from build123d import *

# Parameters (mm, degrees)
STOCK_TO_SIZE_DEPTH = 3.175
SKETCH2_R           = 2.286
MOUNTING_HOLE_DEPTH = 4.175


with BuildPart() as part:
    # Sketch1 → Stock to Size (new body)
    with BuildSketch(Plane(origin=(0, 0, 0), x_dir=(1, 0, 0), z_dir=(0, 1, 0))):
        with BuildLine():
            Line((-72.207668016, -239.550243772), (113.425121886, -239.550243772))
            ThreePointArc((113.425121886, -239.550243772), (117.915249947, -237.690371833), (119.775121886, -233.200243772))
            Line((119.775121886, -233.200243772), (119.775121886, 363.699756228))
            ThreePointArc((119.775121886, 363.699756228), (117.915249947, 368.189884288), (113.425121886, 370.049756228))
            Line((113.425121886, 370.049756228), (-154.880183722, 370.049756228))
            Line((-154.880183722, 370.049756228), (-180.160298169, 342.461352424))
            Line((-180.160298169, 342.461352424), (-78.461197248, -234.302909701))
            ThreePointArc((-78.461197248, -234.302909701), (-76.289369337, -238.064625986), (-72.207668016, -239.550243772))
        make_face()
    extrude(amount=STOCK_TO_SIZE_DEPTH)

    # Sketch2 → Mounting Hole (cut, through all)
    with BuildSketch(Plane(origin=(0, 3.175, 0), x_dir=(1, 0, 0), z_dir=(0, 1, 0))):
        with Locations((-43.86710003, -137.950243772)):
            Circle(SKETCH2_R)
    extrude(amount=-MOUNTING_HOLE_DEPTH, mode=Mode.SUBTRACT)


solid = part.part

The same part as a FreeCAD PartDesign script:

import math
import FreeCAD as App
import Part
import Sketcher
Q = App.Units.Quantity

doc = App.newDocument("Part")
params = doc.addObject("Spreadsheet::Sheet", "Params")
for row, (alias, value) in enumerate([
    ("sketch1_radius", "0.25 in"),
    ("sketch1_height", "23.5 in"),
    ("pad1_length", "0.125 in"),
    ("sketch2_diameter", "0.18 in"),
], start=1):
    params.set(f"A{row}", alias)
    params.set(f"B{row}", "=" + value)
    params.setAlias(f"B{row}", alias)

body = doc.addObject("PartDesign::Body", "Body")

# Sketch on XZ plane
sketch1 = doc.addObject("Sketcher::SketchObject", "Sketch")
body.addObject(sketch1)
sketch1.AttachmentSupport = (doc.XZ_Plane, [""])
sketch1.MapMode = "FlatFace"
sketch1.addGeometry([
    Part.LineSegment(App.Vector(-72.207668, 239.550244, 0), App.Vector(113.425122, 239.550244, 0)),  # 0
    Part.ArcOfCircle(Part.Circle(App.Vector(113.425122, 233.200244, 0), App.Vector(0, 0, 1), 6.35), math.radians(0), math.radians(90)),  # 1
    Part.LineSegment(App.Vector(119.775122, 233.200244, 0), App.Vector(119.775122, -363.699756, 0)),  # 2
    Part.ArcOfCircle(Part.Circle(App.Vector(113.425122, -363.699756, 0), App.Vector(0, 0, 1), 6.35), math.radians(-90), math.radians(0)),  # 3
    Part.LineSegment(App.Vector(113.425122, -370.049756, 0), App.Vector(-154.880184, -370.049756, 0)),  # 4
    Part.LineSegment(App.Vector(-154.880184, -370.049756, 0), App.Vector(-180.160298, -342.461352, 0)),  # 5
    Part.LineSegment(App.Vector(-180.160298, -342.461352, 0), App.Vector(-78.461197, 234.30291, 0)),  # 6
    Part.ArcOfCircle(Part.Circle(App.Vector(-72.207668, 233.200244, 0), App.Vector(0, 0, 1), 6.35), math.radians(90), math.radians(170)),  # 7
], False)
sketch1.addConstraint([
    Sketcher.Constraint("Tangent", 0, 2, 1, 2),
    Sketcher.Constraint("Tangent", 1, 1, 2, 1),
    Sketcher.Constraint("Tangent", 2, 2, 3, 2),
    Sketcher.Constraint("Tangent", 3, 1, 4, 1),
    Sketcher.Constraint("Coincident", 4, 2, 5, 1),
    Sketcher.Constraint("Coincident", 5, 2, 6, 1),
    Sketcher.Constraint("Tangent", 6, 2, 7, 2),
    Sketcher.Constraint("Tangent", 7, 1, 0, 1),
    Sketcher.Constraint("Horizontal", 0),
    Sketcher.Constraint("Vertical", 2),
    Sketcher.Constraint("Horizontal", 4),
    Sketcher.Constraint("Equal", 1, 3),
    Sketcher.Constraint("Equal", 3, 7),
    Sketcher.Constraint("Radius", 1, Q("0.25 in")),
    Sketcher.Constraint("DistanceY", 2, 2, 2, 1, Q("23.5 in")),
    Sketcher.Constraint("Angle", 6, Q("80 deg")),
    Sketcher.Constraint("Angle", 5, Q("132.5 deg")),
    Sketcher.Constraint("DistanceX", 0, 1, 0, 2, 185.63279),
    Sketcher.Constraint("DistanceX", 5, 2, -1, 1, 180.160298),
    Sketcher.Constraint("DistanceX", 5, 2, 6, 2, 101.699101),
    Sketcher.Constraint("DistanceY", -1, 1, 6, 2, 234.30291),
])
sketch1.setExpression("Constraints[13]", "Params.sketch1_radius")
sketch1.setExpression("Constraints[14]", "Params.sketch1_height")
pad1 = doc.addObject("PartDesign::Pad", "Pad")
body.addObject(pad1)
pad1.Profile = sketch1
pad1.setExpression("Length", "Params.pad1_length")
pad1.Reversed = True

# Sketch on XZ plane
sketch2 = doc.addObject("Sketcher::SketchObject", "Sketch001")
body.addObject(sketch2)
sketch2.AttachmentSupport = (doc.XZ_Plane, [""])
sketch2.MapMode = "FlatFace"
sketch2.AttachmentOffset = App.Placement(App.Vector(0, 0, -0.125 * 25.4), App.Rotation())
sketch2.addGeometry(Part.Circle(App.Vector(-43.8671, 137.950244, 0), App.Vector(0, 0, 1), 2.286), False)
sketch2.addConstraint([
    Sketcher.Constraint("Diameter", 0, Q("0.18 in")),
    Sketcher.Constraint("DistanceX", 0, 3, -1, 1, 43.8671),
    Sketcher.Constraint("DistanceY", -1, 1, 0, 3, 137.950244),
])
sketch2.setExpression("Constraints[0]", "Params.sketch2_diameter")
pocket1 = doc.addObject("PartDesign::Pocket", "Pocket")
body.addObject(pocket1)
pocket1.Profile = sketch2
pocket1.Type = "ThroughAll"
pocket1.Reversed = True

doc.recompute()
